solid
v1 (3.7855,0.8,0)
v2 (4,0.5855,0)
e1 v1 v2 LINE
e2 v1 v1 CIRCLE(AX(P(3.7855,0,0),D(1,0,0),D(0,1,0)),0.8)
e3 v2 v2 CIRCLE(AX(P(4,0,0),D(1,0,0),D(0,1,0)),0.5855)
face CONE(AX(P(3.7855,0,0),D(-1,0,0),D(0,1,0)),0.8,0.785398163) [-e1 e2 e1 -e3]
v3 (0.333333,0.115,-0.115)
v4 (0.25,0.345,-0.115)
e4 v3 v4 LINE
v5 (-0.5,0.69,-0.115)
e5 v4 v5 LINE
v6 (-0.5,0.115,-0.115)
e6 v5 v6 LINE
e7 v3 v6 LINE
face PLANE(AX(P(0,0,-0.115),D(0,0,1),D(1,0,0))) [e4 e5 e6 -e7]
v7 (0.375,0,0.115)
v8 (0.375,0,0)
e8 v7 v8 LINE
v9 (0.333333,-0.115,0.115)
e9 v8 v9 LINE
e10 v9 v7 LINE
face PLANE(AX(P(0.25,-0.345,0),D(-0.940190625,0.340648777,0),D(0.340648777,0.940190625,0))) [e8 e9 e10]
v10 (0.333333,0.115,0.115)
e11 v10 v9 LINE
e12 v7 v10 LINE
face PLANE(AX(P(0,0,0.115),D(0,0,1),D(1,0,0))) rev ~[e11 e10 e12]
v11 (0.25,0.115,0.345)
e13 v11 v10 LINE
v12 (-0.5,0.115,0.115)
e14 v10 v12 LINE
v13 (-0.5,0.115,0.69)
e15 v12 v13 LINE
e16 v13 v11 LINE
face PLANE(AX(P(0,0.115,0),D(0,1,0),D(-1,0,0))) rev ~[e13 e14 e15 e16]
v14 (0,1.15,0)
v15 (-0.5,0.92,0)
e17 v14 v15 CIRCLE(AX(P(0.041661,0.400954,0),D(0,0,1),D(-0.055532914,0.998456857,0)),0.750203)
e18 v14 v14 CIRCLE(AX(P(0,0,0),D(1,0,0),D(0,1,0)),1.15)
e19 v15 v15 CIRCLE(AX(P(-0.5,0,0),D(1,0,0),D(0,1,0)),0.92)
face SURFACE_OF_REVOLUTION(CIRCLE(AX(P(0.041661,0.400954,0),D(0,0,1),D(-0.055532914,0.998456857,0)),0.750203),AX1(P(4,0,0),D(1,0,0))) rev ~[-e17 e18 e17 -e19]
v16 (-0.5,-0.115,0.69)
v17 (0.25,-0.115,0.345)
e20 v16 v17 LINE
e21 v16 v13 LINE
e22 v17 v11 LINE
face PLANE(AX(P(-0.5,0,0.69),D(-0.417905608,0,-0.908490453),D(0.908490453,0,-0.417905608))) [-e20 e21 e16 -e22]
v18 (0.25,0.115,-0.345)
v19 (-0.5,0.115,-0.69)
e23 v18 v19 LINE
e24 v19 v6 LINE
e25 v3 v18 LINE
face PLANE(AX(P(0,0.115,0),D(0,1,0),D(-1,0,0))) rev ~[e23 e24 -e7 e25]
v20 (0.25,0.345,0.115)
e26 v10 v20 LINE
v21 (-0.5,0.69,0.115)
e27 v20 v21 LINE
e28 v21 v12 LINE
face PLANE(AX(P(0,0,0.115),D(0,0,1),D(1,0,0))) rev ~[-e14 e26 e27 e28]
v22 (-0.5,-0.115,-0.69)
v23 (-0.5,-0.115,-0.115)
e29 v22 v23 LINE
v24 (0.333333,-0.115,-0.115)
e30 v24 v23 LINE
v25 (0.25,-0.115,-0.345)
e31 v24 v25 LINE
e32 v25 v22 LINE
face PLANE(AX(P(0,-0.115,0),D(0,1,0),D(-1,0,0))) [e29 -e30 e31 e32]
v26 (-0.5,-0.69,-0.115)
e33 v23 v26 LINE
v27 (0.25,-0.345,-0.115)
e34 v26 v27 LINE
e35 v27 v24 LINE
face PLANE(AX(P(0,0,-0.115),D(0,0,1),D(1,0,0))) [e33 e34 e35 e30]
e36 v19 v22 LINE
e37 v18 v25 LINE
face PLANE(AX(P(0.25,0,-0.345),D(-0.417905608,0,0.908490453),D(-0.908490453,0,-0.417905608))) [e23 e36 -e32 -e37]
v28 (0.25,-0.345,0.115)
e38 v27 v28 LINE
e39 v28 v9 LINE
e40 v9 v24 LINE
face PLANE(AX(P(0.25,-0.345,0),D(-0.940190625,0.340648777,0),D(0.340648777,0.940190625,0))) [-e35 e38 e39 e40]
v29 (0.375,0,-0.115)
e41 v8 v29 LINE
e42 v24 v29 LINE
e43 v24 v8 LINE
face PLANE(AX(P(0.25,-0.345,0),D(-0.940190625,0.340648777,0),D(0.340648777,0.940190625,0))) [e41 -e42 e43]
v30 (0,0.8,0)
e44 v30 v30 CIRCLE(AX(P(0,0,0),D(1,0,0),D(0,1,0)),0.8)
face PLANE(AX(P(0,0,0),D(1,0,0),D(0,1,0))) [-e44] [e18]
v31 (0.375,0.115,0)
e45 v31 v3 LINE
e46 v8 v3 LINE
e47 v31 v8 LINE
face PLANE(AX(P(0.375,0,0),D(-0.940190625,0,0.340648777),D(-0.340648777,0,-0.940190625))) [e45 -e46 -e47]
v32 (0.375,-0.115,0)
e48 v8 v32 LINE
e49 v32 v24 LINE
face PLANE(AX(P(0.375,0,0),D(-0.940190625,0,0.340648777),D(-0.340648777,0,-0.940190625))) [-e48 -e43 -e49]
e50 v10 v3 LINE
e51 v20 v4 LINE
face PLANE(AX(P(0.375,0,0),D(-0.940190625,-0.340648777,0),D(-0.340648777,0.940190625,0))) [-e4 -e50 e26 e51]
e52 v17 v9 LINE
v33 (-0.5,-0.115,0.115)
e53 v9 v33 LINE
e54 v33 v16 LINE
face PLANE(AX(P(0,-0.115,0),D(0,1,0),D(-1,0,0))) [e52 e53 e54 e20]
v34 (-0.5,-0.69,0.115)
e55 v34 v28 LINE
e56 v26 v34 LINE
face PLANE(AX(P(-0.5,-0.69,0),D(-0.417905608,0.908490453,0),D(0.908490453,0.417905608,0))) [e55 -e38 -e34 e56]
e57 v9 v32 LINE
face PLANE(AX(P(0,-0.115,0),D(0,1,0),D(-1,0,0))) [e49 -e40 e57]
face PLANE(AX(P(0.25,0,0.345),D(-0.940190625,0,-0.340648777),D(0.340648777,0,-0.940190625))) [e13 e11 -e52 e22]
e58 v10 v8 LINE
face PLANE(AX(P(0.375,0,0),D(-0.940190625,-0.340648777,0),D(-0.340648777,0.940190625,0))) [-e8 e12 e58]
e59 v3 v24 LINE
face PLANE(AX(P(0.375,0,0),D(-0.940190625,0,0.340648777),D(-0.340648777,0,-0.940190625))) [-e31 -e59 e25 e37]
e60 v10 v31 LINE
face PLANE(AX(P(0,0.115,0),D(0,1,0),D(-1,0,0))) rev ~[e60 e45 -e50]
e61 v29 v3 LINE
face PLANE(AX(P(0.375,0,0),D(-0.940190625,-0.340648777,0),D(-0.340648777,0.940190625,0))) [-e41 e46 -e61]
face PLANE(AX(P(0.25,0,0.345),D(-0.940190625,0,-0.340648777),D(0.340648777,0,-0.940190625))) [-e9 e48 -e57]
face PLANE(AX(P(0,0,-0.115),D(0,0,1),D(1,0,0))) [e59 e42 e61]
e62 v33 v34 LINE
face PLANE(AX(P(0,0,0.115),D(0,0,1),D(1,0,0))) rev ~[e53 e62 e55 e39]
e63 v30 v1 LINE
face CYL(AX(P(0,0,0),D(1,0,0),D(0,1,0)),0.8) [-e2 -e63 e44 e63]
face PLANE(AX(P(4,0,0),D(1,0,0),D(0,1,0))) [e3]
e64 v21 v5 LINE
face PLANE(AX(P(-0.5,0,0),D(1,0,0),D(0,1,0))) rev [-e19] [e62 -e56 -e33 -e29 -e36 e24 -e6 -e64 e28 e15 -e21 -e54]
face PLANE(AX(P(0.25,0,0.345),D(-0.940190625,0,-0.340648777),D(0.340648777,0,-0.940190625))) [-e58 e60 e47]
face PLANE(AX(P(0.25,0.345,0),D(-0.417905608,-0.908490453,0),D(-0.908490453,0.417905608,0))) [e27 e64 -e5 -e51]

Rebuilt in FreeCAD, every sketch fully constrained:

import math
import FreeCAD as App
import Part
import Sketcher
Q = App.Units.Quantity


def add_polygon(sketch, points):
    """Adds a closed chain of lines whose ends are joined by coincident constraints."""
    first, n = sketch.GeometryCount, len(points)
    for a, b in zip(points, points[1:] + points[:1]):
        sketch.addGeometry(Part.LineSegment(App.Vector(*a, 0), App.Vector(*b, 0)), False)
    for i in range(n):
        sketch.addConstraint(Sketcher.Constraint("Coincident", first + i, 2, first + (i + 1) % n, 1))

doc = App.newDocument("Part")
body = doc.addObject("PartDesign::Body", "Body")

# Sketch on XY plane
sketch1 = body.newObject("Sketcher::SketchObject", "Sketch")
sketch1.AttachmentSupport = (doc.getObject("XY_Plane"), [""])
sketch1.MapMode = "FlatFace"
sketch1.addGeometry([
    Part.LineSegment(App.Vector(-0.5, 0, 0), App.Vector(4, 0, 0)),  # 0
    Part.LineSegment(App.Vector(4, 0, 0), App.Vector(4, 0.59, 0)),  # 1
    Part.LineSegment(App.Vector(4, 0.59, 0), App.Vector(3.79, 0.8, 0)),  # 2
    Part.LineSegment(App.Vector(3.79, 0.8, 0), App.Vector(0, 0.8, 0)),  # 3
    Part.LineSegment(App.Vector(0, 0.8, 0), App.Vector(0, 1.15, 0)),  # 4
    Part.ArcOfCircle(Part.Circle(App.Vector(0.04, 0.4, 0), App.Vector(0, 0, 1), 0.75), math.radians(93), math.radians(136)),  # 5
    Part.LineSegment(App.Vector(-0.5, 0.92, 0), App.Vector(-0.5, 0, 0)),  # 6
], False)
sketch1.addConstraint([
    Sketcher.Constraint("Coincident", 0, 2, 1, 1),
    Sketcher.Constraint("Coincident", 1, 2, 2, 1),
    Sketcher.Constraint("Coincident", 2, 2, 3, 1),
    Sketcher.Constraint("Coincident", 3, 2, 4, 1),
    Sketcher.Constraint("Coincident", 4, 2, 5, 1),
    Sketcher.Constraint("Coincident", 5, 2, 6, 1),
    Sketcher.Constraint("Coincident", 6, 2, 0, 1),
    Sketcher.Constraint("Horizontal", 0),
    Sketcher.Constraint("Vertical", 1),
    Sketcher.Constraint("Horizontal", 3),
    Sketcher.Constraint("Vertical", 4),
    Sketcher.Constraint("Vertical", 6),
    Sketcher.Constraint("PointOnObject", 0, 2, -1),
    Sketcher.Constraint("PointOnObject", 3, 2, -2),
    Sketcher.Constraint("Angle", 2, Q("135 deg")),
    Sketcher.Constraint("Radius", 5, 0.75),
    Sketcher.Constraint("DistanceX", 0, 1, 0, 2, 4.5),
    Sketcher.Constraint("DistanceX", -1, 1, 0, 2, 4.0),
    Sketcher.Constraint("DistanceY", 4, 1, 4, 2, 0.35),
    Sketcher.Constraint("DistanceY", 6, 2, 6, 1, 0.92),
    Sketcher.Constraint("DistanceY", -1, 1, 2, 2, 0.8),
    Sketcher.Constraint("DistanceX", 3, 2, 3, 1, 3.7855),
])
revolution = body.newObject("PartDesign::Revolution", "Revolution")
revolution.Profile = sketch1
revolution.ReferenceAxis = (sketch1, ["H_Axis"])
revolution.Angle = 360

# Sketch on XY plane
sketch2 = body.newObject("Sketcher::SketchObject", "Sketch001")
sketch2.AttachmentSupport = (doc.getObject("XY_Plane"), [""])
sketch2.MapMode = "FlatFace"
add_polygon(sketch2, [(-0.5, 0.69), (-0.5, -0.69), (0.25, -0.34), (0.38, 0), (0.25, 0.34)])  # lines 0-4
sketch2.addConstraint([
    Sketcher.Constraint("Vertical", 0),
    Sketcher.Constraint("Symmetric", 1, 2, 3, 2, -1),
    Sketcher.Constraint("PointOnObject", 2, 2, -1),
    Sketcher.Constraint("Equal", 1, 4),
    Sketcher.Constraint("DistanceY", 0, 2, 0, 1, 1.38),
    Sketcher.Constraint("DistanceX", 0, 2, -1, 1, 0.5),
    Sketcher.Constraint("DistanceX", -1, 1, 1, 2, 0.25),
    Sketcher.Constraint("DistanceY", 1, 2, 3, 2, 0.69),
    Sketcher.Constraint("Distance", 2, 0.367),
])
pocket1 = body.newObject("PartDesign::Pocket", "Pocket")
pocket1.Profile = sketch2
pocket1.Length = 0.23
pocket1.Midplane = True

# Sketch on XZ plane
sketch3 = body.newObject("Sketcher::SketchObject", "Sketch002")
sketch3.AttachmentSupport = (doc.getObject("XZ_Plane"), [""])
sketch3.MapMode = "FlatFace"
add_polygon(sketch3, [(-0.5, -0.69), (-0.5, 0.69), (0.25, 0.34), (0.38, 0), (0.25, -0.34)])  # lines 0-4
sketch3.addConstraint([
    Sketcher.Constraint("Vertical", 0),
    Sketcher.Constraint("Symmetric", 1, 2, 3, 2, -1),
    Sketcher.Constraint("PointOnObject", 2, 2, -1),
    Sketcher.Constraint("Equal", 1, 4),
    Sketcher.Constraint("DistanceY", 0, 1, 0, 2, 1.38),
    Sketcher.Constraint("DistanceX", 0, 2, -1, 1, 0.5),
    Sketcher.Constraint("DistanceX", -1, 1, 1, 2, 0.25),
    Sketcher.Constraint("DistanceY", 3, 2, 1, 2, 0.69),
    Sketcher.Constraint("Distance", 2, 0.367),
])
pocket2 = body.newObject("PartDesign::Pocket", "Pocket001")
pocket2.Profile = sketch3
pocket2.Length = 0.23
pocket2.Midplane = True

doc.recompute()
